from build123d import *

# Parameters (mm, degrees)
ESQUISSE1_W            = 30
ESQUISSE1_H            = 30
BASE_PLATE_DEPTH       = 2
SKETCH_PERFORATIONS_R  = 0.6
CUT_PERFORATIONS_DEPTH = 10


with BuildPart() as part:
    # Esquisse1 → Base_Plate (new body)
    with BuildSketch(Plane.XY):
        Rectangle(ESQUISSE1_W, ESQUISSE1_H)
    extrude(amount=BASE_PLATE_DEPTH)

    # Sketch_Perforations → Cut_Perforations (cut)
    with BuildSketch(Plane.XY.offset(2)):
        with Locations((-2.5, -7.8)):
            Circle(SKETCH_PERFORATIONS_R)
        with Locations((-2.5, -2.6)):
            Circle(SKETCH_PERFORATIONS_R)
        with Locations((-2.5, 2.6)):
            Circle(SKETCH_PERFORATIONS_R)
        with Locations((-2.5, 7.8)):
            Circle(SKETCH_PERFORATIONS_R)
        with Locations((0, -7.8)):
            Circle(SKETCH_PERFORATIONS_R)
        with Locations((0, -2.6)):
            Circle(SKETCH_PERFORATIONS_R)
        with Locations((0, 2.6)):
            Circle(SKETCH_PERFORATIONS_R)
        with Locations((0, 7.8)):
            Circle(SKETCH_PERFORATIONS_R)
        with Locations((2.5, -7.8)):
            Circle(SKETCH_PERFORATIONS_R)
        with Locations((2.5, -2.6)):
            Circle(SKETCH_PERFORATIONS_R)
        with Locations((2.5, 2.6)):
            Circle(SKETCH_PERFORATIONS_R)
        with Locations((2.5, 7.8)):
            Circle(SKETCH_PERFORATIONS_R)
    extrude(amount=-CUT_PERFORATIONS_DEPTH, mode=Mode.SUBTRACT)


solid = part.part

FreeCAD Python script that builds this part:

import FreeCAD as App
import Part
import Sketcher

V = App.Vector


def add_polygon(sketch, points):
    """Adds a closed chain of lines whose ends are joined by coincident constraints."""
    first, n = sketch.GeometryCount, len(points)
    for a, b in zip(points, points[1:] + points[:1]):
        sketch.addGeometry(Part.LineSegment(App.Vector(*a, 0), App.Vector(*b, 0)), False)
    for i in range(n):
        sketch.addConstraint(Sketcher.Constraint("Coincident", first + i, 2, first + (i + 1) % n, 1))

doc = App.newDocument("Part")
body = doc.addObject("PartDesign::Body", "Body")

# Sketch on XY plane
sketch1 = body.newObject("Sketcher::SketchObject", "Sketch")
sketch1.AttachmentSupport = (doc.getObject("XY_Plane"), [""])
sketch1.MapMode = "FlatFace"
add_polygon(sketch1, [(-15, 15), (-15, -15), (15, -15), (15, 15)])  # lines 0-3
sketch1.addConstraint(Sketcher.Constraint("Vertical", 0))
sketch1.addConstraint(Sketcher.Constraint("Horizontal", 1))
sketch1.addConstraint(Sketcher.Constraint("Vertical", 2))
sketch1.addConstraint(Sketcher.Constraint("Horizontal", 3))
sketch1.addConstraint(Sketcher.Constraint("Symmetric", 0, 2, 2, 2, -1, 1))
sketch1.addConstraint(Sketcher.Constraint("Equal", 3, 0))
sketch1.addConstraint(Sketcher.Constraint("DistanceX", 1, 1, 1, 2, 30.0))
pad1 = body.newObject("PartDesign::Pad", "Pad")
pad1.Profile = sketch1
pad1.Length = 2

# Sketch on XY plane
sketch2 = body.newObject("Sketcher::SketchObject", "Sketch001")
sketch2.AttachmentSupport = (doc.getObject("XY_Plane"), [""])
sketch2.MapMode = "FlatFace"
sketch2.AttachmentOffset = App.Placement(V(0, 0, 2), App.Rotation())
sketch2.addGeometry(Part.Circle(V(-2.5, -7.8, 0), V(0, 0, 1), 0.6), False)
sketch2.addGeometry(Part.Circle(V(-2.5, -2.6, 0), V(0, 0, 1), 0.6), False)
sketch2.addGeometry(Part.Circle(V(-2.5, 2.6, 0), V(0, 0, 1), 0.6), False)
sketch2.addGeometry(Part.Circle(V(-2.5, 7.8, 0), V(0, 0, 1), 0.6), False)
sketch2.addGeometry(Part.Circle(V(0, -7.8, 0), V(0, 0, 1), 0.6), False)
sketch2.addGeometry(Part.Circle(V(0, -2.6, 0), V(0, 0, 1), 0.6), False)
sketch2.addGeometry(Part.Circle(V(0, 2.6, 0), V(0, 0, 1), 0.6), False)
sketch2.addGeometry(Part.Circle(V(0, 7.8, 0), V(0, 0, 1), 0.6), False)
sketch2.addGeometry(Part.Circle(V(2.5, -7.8, 0), V(0, 0, 1), 0.6), False)
sketch2.addGeometry(Part.Circle(V(2.5, -2.6, 0), V(0, 0, 1), 0.6), False)
sketch2.addGeometry(Part.Circle(V(2.5, 2.6, 0), V(0, 0, 1), 0.6), False)
sketch2.addGeometry(Part.Circle(V(2.5, 7.8, 0), V(0, 0, 1), 0.6), False)
sketch2.addConstraint(Sketcher.Constraint("Equal", 0, 1))
sketch2.addConstraint(Sketcher.Constraint("Equal", 1, 2))
sketch2.addConstraint(Sketcher.Constraint("Equal", 2, 3))
sketch2.addConstraint(Sketcher.Constraint("Equal", 3, 4))
sketch2.addConstraint(Sketcher.Constraint("Equal", 4, 5))
sketch2.addConstraint(Sketcher.Constraint("Equal", 5, 6))
sketch2.addConstraint(Sketcher.Constraint("Equal", 6, 7))
sketch2.addConstraint(Sketcher.Constraint("Equal", 7, 8))
sketch2.addConstraint(Sketcher.Constraint("Equal", 8, 9))
sketch2.addConstraint(Sketcher.Constraint("Equal", 9, 10))
sketch2.addConstraint(Sketcher.Constraint("Equal", 10, 11))
sketch2.addConstraint(Sketcher.Constraint("Symmetric", 5, 3, 6, 3, -1, 1))
sketch2.addConstraint(Sketcher.Constraint("Symmetric", 4, 3, 7, 3, -1, 1))
sketch2.addConstraint(Sketcher.Constraint("Symmetric", 3, 3, 8, 3, -1, 1))
sketch2.addConstraint(Sketcher.Constraint("Symmetric", 2, 3, 9, 3, -1, 1))
sketch2.addConstraint(Sketcher.Constraint("Symmetric", 1, 3, 10, 3, -1, 1))
sketch2.addConstraint(Sketcher.Constraint("Symmetric", 0, 3, 11, 3, -1, 1))
sketch2.addConstraint(Sketcher.Constraint("Symmetric", 0, 3, 8, 3, -2))
sketch2.addConstraint(Sketcher.Constraint("Symmetric", 1, 3, 9, 3, -2))
sketch2.addConstraint(Sketcher.Constraint("PointOnObject", 4, 3, -2))
sketch2.addConstraint(Sketcher.Constraint("PointOnObject", 5, 3, -2))
sketch2.addConstraint(Sketcher.Constraint("Horizontal", 0, 3, 4, 3))
sketch2.addConstraint(Sketcher.Constraint("Horizontal", 1, 3, 5, 3))
sketch2.addConstraint(Sketcher.Constraint("Vertical", 0, 3, 1, 3))
sketch2.addConstraint(Sketcher.Constraint("Diameter", 0, 1.2))
sketch2.addConstraint(Sketcher.Constraint("DistanceX", 0, 3, 8, 3, 5.0))
sketch2.addConstraint(Sketcher.Constraint("DistanceY", 0, 3, -1, 1, 7.8))
sketch2.addConstraint(Sketcher.Constraint("DistanceY", 1, 3, -1, 1, 2.6))
pocket1 = body.newObject("PartDesign::Pocket", "Pocket")
pocket1.Profile = sketch2
pocket1.Length = 10

doc.recompute()
